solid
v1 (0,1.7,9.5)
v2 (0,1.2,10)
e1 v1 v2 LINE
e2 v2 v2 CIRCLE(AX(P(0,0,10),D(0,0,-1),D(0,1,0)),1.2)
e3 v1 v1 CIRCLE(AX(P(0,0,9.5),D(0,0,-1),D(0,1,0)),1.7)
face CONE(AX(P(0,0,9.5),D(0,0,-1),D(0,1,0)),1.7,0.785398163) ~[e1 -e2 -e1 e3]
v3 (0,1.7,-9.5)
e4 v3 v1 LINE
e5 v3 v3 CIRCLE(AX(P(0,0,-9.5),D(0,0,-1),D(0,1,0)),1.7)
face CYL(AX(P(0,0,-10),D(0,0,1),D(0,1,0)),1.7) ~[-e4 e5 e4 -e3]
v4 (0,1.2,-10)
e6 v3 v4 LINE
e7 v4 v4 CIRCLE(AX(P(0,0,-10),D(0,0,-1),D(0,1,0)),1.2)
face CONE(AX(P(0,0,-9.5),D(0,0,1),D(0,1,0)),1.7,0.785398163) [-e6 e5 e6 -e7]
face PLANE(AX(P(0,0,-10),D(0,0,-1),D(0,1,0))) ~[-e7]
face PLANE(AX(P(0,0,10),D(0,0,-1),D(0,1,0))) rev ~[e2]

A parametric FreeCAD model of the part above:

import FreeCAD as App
import Part
import Sketcher
Q = App.Units.Quantity


def edges_at(feature, points):
    """Names of the edges that pass closest to the given points."""
    edges = feature.Shape.Edges
    near = lambda p: min(range(len(edges)), key=lambda i: edges[i].distToShape(Part.Vertex(*p))[0])
    return sorted({f"Edge{near(p) + 1}" for p in points})

doc = App.newDocument("Part")
body = doc.addObject("PartDesign::Body", "Body")

# Sketch on YZ plane
sketch1 = body.newObject("Sketcher::SketchObject", "Sketch")
sketch1.AttachmentSupport = (doc.getObject("YZ_Plane"), [""])
sketch1.MapMode = "FlatFace"
sketch1.addGeometry([
    Part.LineSegment(App.Vector(1.7, -10, 0), App.Vector(1.7, 10, 0)),
    Part.LineSegment(App.Vector(1.7, 10, 0), App.Vector(0, 10, 0)),
    Part.LineSegment(App.Vector(0, 10, 0), App.Vector(0, -10, 0)),
    Part.LineSegment(App.Vector(0, -10, 0), App.Vector(1.7, -10, 0)),
], False)
sketch1.addConstraint([
    Sketcher.Constraint("Coincident", 0, 2, 1, 1),
    Sketcher.Constraint("Coincident", 1, 2, 2, 1),
    Sketcher.Constraint("Coincident", 2, 2, 3, 1),
    Sketcher.Constraint("Coincident", 3, 2, 0, 1),
    Sketcher.Constraint("Vertical", 0),
    Sketcher.Constraint("Horizontal", 1),
    Sketcher.Constraint("Vertical", 2),
    Sketcher.Constraint("Horizontal", 3),
    Sketcher.Constraint("Symmetric", 1, 2, 2, 2, -1, 1),
    Sketcher.Constraint("DistanceY", 0, 1, 0, 2, Q("20 mm")),
    Sketcher.Constraint("DistanceX", 1, 2, 1, 1, Q("1.7 mm")),
])
revolution = body.newObject("PartDesign::Revolution", "Revolution")
revolution.Profile = sketch1
revolution.ReferenceAxis = (sketch1, ["V_Axis"])
revolution.Angle = 360
doc.recompute()

chamfer = body.newObject("PartDesign::Chamfer", "Chamfer")
chamfer.Base = (revolution, edges_at(revolution, [(0, -1.7, 10), (0, -1.7, -10)]))
chamfer.Size = 0.5

doc.recompute()
